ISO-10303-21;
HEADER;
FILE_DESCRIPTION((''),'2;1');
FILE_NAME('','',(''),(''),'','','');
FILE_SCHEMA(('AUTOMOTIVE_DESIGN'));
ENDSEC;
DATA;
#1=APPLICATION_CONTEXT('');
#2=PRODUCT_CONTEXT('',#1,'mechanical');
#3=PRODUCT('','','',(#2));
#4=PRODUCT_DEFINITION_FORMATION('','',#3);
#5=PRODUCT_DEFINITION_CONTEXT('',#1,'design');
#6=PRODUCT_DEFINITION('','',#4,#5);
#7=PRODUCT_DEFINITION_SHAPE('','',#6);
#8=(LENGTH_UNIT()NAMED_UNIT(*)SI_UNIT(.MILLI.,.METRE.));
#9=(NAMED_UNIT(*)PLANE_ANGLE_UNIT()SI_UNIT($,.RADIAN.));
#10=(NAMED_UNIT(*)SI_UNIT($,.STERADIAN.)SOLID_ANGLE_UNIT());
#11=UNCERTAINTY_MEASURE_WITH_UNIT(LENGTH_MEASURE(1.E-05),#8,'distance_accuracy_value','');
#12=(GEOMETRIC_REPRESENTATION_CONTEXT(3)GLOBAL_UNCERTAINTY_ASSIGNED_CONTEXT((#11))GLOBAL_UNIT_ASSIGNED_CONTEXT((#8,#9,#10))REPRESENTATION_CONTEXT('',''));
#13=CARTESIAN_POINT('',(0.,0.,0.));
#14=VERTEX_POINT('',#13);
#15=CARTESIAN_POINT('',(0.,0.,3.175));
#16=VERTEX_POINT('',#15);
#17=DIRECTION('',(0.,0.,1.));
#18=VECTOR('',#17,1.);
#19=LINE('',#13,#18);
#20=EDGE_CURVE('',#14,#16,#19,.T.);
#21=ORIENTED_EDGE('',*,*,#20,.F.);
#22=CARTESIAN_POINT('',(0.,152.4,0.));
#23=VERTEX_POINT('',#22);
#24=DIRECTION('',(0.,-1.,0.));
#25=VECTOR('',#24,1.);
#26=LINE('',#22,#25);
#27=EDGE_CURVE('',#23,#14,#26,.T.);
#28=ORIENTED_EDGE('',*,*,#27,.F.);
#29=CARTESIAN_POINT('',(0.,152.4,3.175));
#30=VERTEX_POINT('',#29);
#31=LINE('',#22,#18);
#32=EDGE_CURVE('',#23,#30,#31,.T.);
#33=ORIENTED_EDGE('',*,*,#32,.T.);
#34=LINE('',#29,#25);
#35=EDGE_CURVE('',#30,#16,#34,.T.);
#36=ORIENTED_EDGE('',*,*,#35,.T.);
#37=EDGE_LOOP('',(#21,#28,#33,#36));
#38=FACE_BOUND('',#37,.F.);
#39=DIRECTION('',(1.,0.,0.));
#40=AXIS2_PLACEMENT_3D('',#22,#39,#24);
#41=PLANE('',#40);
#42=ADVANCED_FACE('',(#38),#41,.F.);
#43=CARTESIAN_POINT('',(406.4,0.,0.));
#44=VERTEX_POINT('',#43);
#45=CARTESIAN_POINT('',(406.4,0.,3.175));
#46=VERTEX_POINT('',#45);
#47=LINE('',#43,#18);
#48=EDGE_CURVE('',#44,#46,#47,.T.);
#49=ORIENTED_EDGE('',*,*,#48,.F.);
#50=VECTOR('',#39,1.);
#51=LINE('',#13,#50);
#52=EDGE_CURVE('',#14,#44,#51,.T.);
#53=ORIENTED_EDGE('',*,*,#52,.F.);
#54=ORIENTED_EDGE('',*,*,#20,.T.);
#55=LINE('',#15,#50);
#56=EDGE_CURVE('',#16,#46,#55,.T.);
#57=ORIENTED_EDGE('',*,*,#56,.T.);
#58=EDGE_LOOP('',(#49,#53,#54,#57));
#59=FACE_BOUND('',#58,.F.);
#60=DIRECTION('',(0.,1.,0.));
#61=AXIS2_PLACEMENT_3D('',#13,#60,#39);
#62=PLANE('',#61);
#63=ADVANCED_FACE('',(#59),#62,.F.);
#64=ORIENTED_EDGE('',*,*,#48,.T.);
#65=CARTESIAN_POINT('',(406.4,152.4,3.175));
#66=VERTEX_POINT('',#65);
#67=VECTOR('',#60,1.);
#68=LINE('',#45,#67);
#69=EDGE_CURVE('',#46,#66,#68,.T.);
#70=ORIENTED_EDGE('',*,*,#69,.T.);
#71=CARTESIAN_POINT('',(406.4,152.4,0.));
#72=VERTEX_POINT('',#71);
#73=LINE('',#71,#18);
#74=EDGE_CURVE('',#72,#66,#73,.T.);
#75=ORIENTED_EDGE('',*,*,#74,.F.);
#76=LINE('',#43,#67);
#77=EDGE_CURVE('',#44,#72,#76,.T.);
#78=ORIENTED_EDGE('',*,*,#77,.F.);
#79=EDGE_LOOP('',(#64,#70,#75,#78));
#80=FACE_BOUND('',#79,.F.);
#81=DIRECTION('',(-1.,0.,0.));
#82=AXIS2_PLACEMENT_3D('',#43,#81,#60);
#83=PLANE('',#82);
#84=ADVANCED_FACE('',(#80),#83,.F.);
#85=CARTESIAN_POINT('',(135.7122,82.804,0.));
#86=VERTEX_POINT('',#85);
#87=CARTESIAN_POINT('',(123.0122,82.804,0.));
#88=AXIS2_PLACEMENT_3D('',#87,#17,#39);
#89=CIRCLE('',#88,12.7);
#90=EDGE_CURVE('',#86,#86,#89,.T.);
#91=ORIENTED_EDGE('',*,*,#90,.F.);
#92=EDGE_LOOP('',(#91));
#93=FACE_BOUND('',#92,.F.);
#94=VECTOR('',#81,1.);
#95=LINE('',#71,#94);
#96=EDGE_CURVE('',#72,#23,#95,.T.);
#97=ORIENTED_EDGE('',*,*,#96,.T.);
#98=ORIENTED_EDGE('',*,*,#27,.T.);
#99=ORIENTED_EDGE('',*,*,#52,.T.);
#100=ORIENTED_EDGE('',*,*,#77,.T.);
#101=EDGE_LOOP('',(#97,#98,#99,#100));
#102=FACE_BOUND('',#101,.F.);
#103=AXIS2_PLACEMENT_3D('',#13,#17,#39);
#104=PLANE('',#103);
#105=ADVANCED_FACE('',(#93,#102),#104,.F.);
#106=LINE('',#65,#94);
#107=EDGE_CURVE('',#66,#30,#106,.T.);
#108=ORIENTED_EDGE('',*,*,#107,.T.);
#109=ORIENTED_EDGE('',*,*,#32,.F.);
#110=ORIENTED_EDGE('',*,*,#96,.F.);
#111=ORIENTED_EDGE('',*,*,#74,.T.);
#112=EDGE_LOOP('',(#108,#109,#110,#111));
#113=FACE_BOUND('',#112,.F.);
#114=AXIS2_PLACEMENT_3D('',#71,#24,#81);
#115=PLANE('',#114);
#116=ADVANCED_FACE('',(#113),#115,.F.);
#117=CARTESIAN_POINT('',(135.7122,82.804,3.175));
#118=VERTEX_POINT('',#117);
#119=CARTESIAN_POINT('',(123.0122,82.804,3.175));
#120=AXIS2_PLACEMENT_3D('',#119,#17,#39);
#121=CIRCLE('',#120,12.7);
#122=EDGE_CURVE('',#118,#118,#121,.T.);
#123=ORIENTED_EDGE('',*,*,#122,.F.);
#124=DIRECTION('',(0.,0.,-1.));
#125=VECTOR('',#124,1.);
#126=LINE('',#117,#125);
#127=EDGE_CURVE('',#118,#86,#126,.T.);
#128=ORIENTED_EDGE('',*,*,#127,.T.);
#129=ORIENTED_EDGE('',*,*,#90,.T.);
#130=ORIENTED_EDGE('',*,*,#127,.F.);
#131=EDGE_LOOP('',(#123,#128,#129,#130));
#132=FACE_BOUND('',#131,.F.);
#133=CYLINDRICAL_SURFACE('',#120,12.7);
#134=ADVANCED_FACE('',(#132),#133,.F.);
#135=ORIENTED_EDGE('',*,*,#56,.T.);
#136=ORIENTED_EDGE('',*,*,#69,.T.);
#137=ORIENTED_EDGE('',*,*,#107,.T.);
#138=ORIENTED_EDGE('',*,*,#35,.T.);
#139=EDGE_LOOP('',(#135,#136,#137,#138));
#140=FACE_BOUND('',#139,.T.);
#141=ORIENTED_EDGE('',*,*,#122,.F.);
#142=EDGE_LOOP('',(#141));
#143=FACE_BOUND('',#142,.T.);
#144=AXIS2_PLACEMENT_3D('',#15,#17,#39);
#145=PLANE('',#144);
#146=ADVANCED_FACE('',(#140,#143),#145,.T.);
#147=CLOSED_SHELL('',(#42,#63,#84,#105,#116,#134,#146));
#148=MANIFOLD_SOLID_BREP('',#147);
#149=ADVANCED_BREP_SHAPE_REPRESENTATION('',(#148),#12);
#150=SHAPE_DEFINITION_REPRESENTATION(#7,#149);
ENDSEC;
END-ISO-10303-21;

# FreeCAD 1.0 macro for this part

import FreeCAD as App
import Part
import Sketcher
from FreeCAD import Vector
Q = App.Units.Quantity

doc = App.newDocument("Part")
body = doc.addObject("PartDesign::Body", "Body")

# Sketch on XY plane
sketch1 = body.newObject("Sketcher::SketchObject", "Sketch")
sketch1.AttachmentSupport = (doc.getObject("XY_Plane"), [""])
sketch1.MapMode = "FlatFace"
sketch1.addGeometry([
    Part.LineSegment(Vector(0, 152.4, 0), Vector(0, 0, 0)),
    Part.LineSegment(Vector(0, 0, 0), Vector(406.4, 0, 0)),
    Part.LineSegment(Vector(406.4, 0, 0), Vector(406.4, 152.4, 0)),
    Part.LineSegment(Vector(406.4, 152.4, 0), Vector(0, 152.4, 0)),
], False)
sketch1.addConstraint([
    Sketcher.Constraint("Coincident", 0, 2, 1, 1),
    Sketcher.Constraint("Coincident", 1, 2, 2, 1),
    Sketcher.Constraint("Coincident", 2, 2, 3, 1),
    Sketcher.Constraint("Coincident", 3, 2, 0, 1),
    Sketcher.Constraint("Vertical", 0),
    Sketcher.Constraint("Horizontal", 1),
    Sketcher.Constraint("Vertical", 2),
    Sketcher.Constraint("Horizontal", 3),
    Sketcher.Constraint("Coincident", 0, 2, -1, 1),
    Sketcher.Constraint("DistanceX", 1, 1, 1, 2, Q("16 in")),
    Sketcher.Constraint("DistanceY", 0, 2, 0, 1, Q("6 in")),
])
pad1 = body.newObject("PartDesign::Pad", "Pad")
pad1.Profile = sketch1
pad1.Length = Q("0.125 in")

# Sketch on XY plane
sketch2 = body.newObject("Sketcher::SketchObject", "Sketch001")
sketch2.AttachmentSupport = (doc.getObject("XY_Plane"), [""])
sketch2.MapMode = "FlatFace"
sketch2.AttachmentOffset = App.Placement(Vector(0, 0, 0.125 * 25.4), App.Rotation())
sketch2.addGeometry(Part.Circle(Vector(123.0122, 82.804, 0), Vector(0, 0, 1), 12.7), False)
sketch2.addConstraint([
    Sketcher.Constraint("Diameter", 0, Q("1 in")),
    Sketcher.Constraint("DistanceY", -1, 1, 0, 3, Q("3.26 in")),
    Sketcher.Constraint("DistanceX", -1, 1, 0, 3, Q("4.843 in")),
])
pocket1 = body.newObject("PartDesign::Pocket", "Pocket")
pocket1.Profile = sketch2
pocket1.Length = Q("0.125 in")

doc.recompute()
